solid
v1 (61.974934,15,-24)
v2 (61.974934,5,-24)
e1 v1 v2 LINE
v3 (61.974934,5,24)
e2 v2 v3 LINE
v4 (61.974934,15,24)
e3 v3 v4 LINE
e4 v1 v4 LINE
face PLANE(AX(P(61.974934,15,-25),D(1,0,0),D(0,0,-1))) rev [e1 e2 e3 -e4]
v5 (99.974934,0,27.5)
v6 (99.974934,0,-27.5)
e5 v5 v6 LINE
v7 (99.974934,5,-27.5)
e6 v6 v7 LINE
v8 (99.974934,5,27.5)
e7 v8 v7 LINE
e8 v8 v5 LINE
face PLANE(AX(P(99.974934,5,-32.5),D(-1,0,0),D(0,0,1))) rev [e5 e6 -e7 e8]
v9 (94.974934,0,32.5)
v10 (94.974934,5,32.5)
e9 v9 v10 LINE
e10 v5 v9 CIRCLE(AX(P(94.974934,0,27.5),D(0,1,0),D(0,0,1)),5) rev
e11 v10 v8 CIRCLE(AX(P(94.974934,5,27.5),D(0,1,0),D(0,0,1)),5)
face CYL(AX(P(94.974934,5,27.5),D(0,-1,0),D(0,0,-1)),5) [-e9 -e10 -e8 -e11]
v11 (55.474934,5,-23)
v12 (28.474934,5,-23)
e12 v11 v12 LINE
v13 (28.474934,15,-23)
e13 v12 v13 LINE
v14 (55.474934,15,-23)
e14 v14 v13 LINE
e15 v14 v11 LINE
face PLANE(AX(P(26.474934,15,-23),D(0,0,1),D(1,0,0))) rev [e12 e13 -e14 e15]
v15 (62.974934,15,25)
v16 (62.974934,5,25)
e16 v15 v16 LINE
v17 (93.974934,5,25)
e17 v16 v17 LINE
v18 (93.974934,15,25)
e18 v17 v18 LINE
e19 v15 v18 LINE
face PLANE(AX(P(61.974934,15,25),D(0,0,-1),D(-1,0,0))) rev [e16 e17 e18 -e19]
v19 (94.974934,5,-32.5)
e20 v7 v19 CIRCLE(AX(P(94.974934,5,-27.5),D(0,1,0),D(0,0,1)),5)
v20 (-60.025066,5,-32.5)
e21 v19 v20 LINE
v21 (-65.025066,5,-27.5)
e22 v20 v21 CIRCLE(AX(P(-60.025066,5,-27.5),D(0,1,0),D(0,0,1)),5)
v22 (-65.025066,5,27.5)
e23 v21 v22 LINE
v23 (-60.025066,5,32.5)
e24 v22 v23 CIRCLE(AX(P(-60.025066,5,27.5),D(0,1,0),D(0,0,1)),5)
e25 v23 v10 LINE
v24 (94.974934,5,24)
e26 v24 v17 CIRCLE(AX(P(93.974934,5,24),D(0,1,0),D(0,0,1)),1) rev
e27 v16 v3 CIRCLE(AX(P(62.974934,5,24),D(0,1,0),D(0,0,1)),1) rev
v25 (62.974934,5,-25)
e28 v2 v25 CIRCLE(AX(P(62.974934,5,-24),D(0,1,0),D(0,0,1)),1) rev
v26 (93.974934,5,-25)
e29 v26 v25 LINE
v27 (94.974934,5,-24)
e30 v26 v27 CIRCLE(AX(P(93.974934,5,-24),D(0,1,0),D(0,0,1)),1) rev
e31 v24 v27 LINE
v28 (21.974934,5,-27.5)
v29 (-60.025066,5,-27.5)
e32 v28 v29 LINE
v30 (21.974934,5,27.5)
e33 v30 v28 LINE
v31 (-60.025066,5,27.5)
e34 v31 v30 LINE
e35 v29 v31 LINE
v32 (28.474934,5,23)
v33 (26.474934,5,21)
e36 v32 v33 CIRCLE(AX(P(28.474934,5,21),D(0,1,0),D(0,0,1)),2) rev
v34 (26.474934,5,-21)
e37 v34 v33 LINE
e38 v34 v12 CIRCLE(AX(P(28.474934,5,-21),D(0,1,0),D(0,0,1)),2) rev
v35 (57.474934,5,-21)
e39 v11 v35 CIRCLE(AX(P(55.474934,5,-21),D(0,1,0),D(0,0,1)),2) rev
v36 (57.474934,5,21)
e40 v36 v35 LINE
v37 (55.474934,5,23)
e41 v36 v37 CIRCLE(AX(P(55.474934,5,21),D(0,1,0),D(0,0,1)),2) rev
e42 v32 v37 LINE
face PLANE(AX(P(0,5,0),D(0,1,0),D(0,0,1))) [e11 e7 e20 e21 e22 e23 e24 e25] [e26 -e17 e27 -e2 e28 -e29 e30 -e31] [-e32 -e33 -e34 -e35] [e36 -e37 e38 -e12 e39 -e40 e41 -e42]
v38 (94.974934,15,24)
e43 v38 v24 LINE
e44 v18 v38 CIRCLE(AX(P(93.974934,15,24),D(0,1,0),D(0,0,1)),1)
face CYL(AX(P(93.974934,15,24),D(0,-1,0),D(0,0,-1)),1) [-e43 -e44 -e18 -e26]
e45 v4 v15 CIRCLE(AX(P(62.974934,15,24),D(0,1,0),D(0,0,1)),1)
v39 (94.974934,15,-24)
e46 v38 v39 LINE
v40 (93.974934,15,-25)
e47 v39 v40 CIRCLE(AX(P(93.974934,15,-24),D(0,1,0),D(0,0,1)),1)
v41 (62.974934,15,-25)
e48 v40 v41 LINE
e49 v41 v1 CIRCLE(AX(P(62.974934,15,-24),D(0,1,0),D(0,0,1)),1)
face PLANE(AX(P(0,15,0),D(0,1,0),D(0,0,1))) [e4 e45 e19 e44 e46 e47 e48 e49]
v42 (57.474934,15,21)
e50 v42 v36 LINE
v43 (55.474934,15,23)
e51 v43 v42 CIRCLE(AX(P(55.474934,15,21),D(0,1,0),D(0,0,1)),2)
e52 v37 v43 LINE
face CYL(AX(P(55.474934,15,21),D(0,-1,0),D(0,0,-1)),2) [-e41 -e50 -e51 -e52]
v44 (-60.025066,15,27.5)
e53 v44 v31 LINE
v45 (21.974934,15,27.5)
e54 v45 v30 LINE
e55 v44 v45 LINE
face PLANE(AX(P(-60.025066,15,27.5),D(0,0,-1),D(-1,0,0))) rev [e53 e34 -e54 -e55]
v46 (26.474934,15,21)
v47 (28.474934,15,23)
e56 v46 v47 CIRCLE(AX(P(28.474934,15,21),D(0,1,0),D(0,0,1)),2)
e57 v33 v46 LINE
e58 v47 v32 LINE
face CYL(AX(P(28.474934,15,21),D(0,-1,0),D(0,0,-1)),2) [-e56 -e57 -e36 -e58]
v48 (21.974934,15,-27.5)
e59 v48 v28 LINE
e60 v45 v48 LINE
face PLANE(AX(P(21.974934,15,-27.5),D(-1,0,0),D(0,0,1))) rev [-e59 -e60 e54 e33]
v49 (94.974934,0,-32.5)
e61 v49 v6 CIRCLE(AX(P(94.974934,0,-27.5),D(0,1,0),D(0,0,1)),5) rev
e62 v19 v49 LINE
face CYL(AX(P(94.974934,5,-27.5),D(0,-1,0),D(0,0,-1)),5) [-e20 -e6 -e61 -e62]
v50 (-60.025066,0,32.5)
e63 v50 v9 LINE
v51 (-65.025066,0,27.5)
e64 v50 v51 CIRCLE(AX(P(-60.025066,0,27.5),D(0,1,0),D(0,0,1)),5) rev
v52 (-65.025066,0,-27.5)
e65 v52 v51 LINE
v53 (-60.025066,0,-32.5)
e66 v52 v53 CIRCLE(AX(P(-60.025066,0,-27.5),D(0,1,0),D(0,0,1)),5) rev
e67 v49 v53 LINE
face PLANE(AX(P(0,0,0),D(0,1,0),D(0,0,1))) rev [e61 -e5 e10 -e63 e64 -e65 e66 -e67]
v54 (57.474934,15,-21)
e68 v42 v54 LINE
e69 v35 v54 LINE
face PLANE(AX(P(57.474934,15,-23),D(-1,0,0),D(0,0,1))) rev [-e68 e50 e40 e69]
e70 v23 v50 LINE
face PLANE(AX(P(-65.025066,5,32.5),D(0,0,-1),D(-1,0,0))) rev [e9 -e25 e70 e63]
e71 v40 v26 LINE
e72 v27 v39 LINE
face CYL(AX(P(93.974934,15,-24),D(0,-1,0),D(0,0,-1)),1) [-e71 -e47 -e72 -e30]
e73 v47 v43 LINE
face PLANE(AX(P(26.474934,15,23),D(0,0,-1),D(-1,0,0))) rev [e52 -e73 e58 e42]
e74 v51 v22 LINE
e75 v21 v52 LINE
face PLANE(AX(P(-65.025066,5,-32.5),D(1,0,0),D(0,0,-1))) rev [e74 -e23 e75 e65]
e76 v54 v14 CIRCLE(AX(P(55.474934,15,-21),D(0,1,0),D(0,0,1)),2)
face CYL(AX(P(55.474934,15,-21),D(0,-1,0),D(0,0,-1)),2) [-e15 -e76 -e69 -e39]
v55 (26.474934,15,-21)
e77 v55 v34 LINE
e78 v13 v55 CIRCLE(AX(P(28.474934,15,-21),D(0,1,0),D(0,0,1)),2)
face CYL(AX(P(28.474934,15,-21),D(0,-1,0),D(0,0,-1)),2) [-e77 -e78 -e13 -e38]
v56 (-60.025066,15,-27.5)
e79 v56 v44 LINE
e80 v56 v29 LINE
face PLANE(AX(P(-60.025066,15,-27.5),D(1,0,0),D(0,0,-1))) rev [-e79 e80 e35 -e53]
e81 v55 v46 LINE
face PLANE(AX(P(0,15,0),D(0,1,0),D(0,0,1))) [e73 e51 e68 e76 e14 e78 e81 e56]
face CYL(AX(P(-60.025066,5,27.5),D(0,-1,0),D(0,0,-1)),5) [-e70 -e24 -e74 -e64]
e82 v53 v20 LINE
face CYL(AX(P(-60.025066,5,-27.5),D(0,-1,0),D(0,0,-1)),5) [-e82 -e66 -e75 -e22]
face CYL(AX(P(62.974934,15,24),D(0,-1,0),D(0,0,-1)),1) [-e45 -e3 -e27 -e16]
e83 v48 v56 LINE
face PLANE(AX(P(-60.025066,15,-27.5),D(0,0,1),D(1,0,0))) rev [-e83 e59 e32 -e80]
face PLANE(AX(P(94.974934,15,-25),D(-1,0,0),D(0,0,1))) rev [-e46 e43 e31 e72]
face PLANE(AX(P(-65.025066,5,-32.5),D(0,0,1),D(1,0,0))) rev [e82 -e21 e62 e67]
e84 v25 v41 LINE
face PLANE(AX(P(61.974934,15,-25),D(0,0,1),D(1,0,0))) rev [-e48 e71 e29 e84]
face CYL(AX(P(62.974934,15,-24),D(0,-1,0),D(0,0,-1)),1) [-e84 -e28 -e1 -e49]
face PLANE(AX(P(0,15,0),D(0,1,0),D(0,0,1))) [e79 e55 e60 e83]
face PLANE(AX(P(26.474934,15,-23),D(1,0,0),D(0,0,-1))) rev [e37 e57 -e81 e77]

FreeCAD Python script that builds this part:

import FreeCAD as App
import Part
import Sketcher

V = App.Vector
Q = App.Units.Quantity


def edges_at(feature, points):
    """Names of the edges that pass closest to the given points."""
    edges = feature.Shape.Edges
    near = lambda p: min(range(len(edges)), key=lambda i: edges[i].distToShape(Part.Vertex(*p))[0])
    return sorted({f"Edge{near(p) + 1}" for p in points})

doc = App.newDocument("Part")
body = doc.addObject("PartDesign::Body", "Body")

# Sketch on XZ plane
sketch1 = body.newObject("Sketcher::SketchObject", "Sketch")
sketch1.AttachmentSupport = (doc.getObject("XZ_Plane"), [""])
sketch1.MapMode = "FlatFace"
sketch1.addGeometry(Part.LineSegment(V(-65, -32, 0), V(-65, 32, 0)), False)
sketch1.addGeometry(Part.LineSegment(V(-65, 32, 0), V(100, 32, 0)), False)
sketch1.addGeometry(Part.LineSegment(V(100, 32, 0), V(100, -32, 0)), False)
sketch1.addGeometry(Part.LineSegment(V(100, -32, 0), V(-65, -32, 0)), False)
sketch1.addConstraint(Sketcher.Constraint("Coincident", 0, 2, 1, 1))
sketch1.addConstraint(Sketcher.Constraint("Coincident", 1, 2, 2, 1))
sketch1.addConstraint(Sketcher.Constraint("Coincident", 2, 2, 3, 1))
sketch1.addConstraint(Sketcher.Constraint("Coincident", 3, 2, 0, 1))
sketch1.addConstraint(Sketcher.Constraint("Vertical", 0))
sketch1.addConstraint(Sketcher.Constraint("Horizontal", 1))
sketch1.addConstraint(Sketcher.Constraint("Vertical", 2))
sketch1.addConstraint(Sketcher.Constraint("Horizontal", 3))
sketch1.addConstraint(Sketcher.Constraint("DistanceX", 1, 1, 1, 2, Q("165 mm")))
sketch1.addConstraint(Sketcher.Constraint("DistanceY", 0, 1, 0, 2, Q("65 mm")))
sketch1.addConstraint(Sketcher.Constraint("DistanceY", -1, 1, 0, 2, Q("32.5 mm")))
sketch1.addConstraint(Sketcher.Constraint("DistanceX", 0, 2, -1, 1, Q("65.025066 mm")))
pad1 = body.newObject("PartDesign::Pad", "Pad")
pad1.Profile = sketch1
pad1.Length = 5
pad1.Reversed = True
doc.recompute()

fillet = body.newObject("PartDesign::Fillet", "Fillet")
fillet.Base = (pad1, edges_at(pad1, [
    (-65.025, 2.5, -32.5),
    (99.975, 2.5, -32.5),
    (99.975, 2.5, 32.5),
    (-65.025, 2.5, 32.5),
]))
fillet.Radius = 5

# Sketch on XZ plane
sketch2 = body.newObject("Sketcher::SketchObject", "Sketch001")
sketch2.AttachmentSupport = (doc.getObject("XZ_Plane"), [""])
sketch2.MapMode = "FlatFace"
sketch2.AttachmentOffset = App.Placement(V(0, 0, -5), App.Rotation())
sketch2.addGeometry(Part.LineSegment(V(-60, -28, 0), V(-60, 28, 0)), False)
sketch2.addGeometry(Part.LineSegment(V(-60, 28, 0), V(22, 28, 0)), False)
sketch2.addGeometry(Part.LineSegment(V(22, 28, 0), V(22, -28, 0)), False)
sketch2.addGeometry(Part.LineSegment(V(22, -28, 0), V(-60, -28, 0)), False)
sketch2.addGeometry(Part.LineSegment(V(26, -23, 0), V(26, 23, 0)), False)
sketch2.addGeometry(Part.LineSegment(V(26, 23, 0), V(57, 23, 0)), False)
sketch2.addGeometry(Part.LineSegment(V(57, 23, 0), V(57, -23, 0)), False)
sketch2.addGeometry(Part.LineSegment(V(57, -23, 0), V(26, -23, 0)), False)
sketch2.addGeometry(Part.LineSegment(V(62, -25, 0), V(62, 25, 0)), False)
sketch2.addGeometry(Part.LineSegment(V(62, 25, 0), V(95, 25, 0)), False)
sketch2.addGeometry(Part.LineSegment(V(95, 25, 0), V(95, -25, 0)), False)
sketch2.addGeometry(Part.LineSegment(V(95, -25, 0), V(62, -25, 0)), False)
sketch2.addConstraint(Sketcher.Constraint("Coincident", 0, 2, 1, 1))
sketch2.addConstraint(Sketcher.Constraint("Coincident", 1, 2, 2, 1))
sketch2.addConstraint(Sketcher.Constraint("Coincident", 2, 2, 3, 1))
sketch2.addConstraint(Sketcher.Constraint("Coincident", 3, 2, 0, 1))
sketch2.addConstraint(Sketcher.Constraint("Coincident", 4, 2, 5, 1))
sketch2.addConstraint(Sketcher.Constraint("Coincident", 5, 2, 6, 1))
sketch2.addConstraint(Sketcher.Constraint("Coincident", 6, 2, 7, 1))
sketch2.addConstraint(Sketcher.Constraint("Coincident", 7, 2, 4, 1))
sketch2.addConstraint(Sketcher.Constraint("Coincident", 8, 2, 9, 1))
sketch2.addConstraint(Sketcher.Constraint("Coincident", 9, 2, 10, 1))
sketch2.addConstraint(Sketcher.Constraint("Coincident", 10, 2, 11, 1))
sketch2.addConstraint(Sketcher.Constraint("Coincident", 11, 2, 8, 1))
sketch2.addConstraint(Sketcher.Constraint("Vertical", 0))
sketch2.addConstraint(Sketcher.Constraint("Horizontal", 1))
sketch2.addConstraint(Sketcher.Constraint("Vertical", 2))
sketch2.addConstraint(Sketcher.Constraint("Horizontal", 3))
sketch2.addConstraint(Sketcher.Constraint("Vertical", 4))
sketch2.addConstraint(Sketcher.Constraint("Horizontal", 5))
sketch2.addConstraint(Sketcher.Constraint("Vertical", 6))
sketch2.addConstraint(Sketcher.Constraint("Horizontal", 7))
sketch2.addConstraint(Sketcher.Constraint("Vertical", 8))
sketch2.addConstraint(Sketcher.Constraint("Horizontal", 9))
sketch2.addConstraint(Sketcher.Constraint("Vertical", 10))
sketch2.addConstraint(Sketcher.Constraint("Horizontal", 11))
sketch2.addConstraint(Sketcher.Constraint("DistanceX", 1, 1, 1, 2, Q("82 mm")))
sketch2.addConstraint(Sketcher.Constraint("DistanceX", 5, 1, 5, 2, Q("31 mm")))
sketch2.addConstraint(Sketcher.Constraint("DistanceX", 9, 1, 9, 2, Q("33 mm")))
sketch2.addConstraint(Sketcher.Constraint("DistanceY", 0, 1, 0, 2, Q("55 mm")))
sketch2.addConstraint(Sketcher.Constraint("DistanceY", 4, 1, 4, 2, Q("46 mm")))
sketch2.addConstraint(Sketcher.Constraint("DistanceY", 8, 1, 8, 2, Q("50 mm")))
sketch2.addConstraint(Sketcher.Constraint("DistanceY", -1, 1, 4, 2, Q("23 mm")))
sketch2.addConstraint(Sketcher.Constraint("DistanceY", -1, 1, 8, 2, Q("25 mm")))
sketch2.addConstraint(Sketcher.Constraint("DistanceX", 1, 2, 8, 2, Q("40 mm")))
sketch2.addConstraint(Sketcher.Constraint("DistanceY", -1, 1, 0, 2, Q("27.5 mm")))
sketch2.addConstraint(Sketcher.Constraint("DistanceX", 1, 2, 4, 2, Q("4.5 mm")))
sketch2.addConstraint(Sketcher.Constraint("DistanceX", 0, 2, -1, 1, Q("60.025066 mm")))
pad2 = body.newObject("PartDesign::Pad", "Pad001")
pad2.Profile = sketch2
pad2.Length = 10
pad2.Reversed = True
doc.recompute()

fillet2 = body.newObject("PartDesign::Fillet", "Fillet001")
fillet2.Base = (pad2, edges_at(pad2, [
    (26.475, 10, -23),
    (26.475, 10, 23),
    (57.475, 10, 23),
    (57.475, 10, -23),
]))
fillet2.Radius = 2
doc.recompute()

fillet3 = body.newObject("PartDesign::Fillet", "Fillet002")
fillet3.Base = (fillet2, edges_at(fillet2, [
    (61.975, 10, -25),
    (61.975, 10, 25),
    (94.975, 10, 25),
    (94.975, 10, -25),
]))
fillet3.Radius = 1

doc.recompute()
